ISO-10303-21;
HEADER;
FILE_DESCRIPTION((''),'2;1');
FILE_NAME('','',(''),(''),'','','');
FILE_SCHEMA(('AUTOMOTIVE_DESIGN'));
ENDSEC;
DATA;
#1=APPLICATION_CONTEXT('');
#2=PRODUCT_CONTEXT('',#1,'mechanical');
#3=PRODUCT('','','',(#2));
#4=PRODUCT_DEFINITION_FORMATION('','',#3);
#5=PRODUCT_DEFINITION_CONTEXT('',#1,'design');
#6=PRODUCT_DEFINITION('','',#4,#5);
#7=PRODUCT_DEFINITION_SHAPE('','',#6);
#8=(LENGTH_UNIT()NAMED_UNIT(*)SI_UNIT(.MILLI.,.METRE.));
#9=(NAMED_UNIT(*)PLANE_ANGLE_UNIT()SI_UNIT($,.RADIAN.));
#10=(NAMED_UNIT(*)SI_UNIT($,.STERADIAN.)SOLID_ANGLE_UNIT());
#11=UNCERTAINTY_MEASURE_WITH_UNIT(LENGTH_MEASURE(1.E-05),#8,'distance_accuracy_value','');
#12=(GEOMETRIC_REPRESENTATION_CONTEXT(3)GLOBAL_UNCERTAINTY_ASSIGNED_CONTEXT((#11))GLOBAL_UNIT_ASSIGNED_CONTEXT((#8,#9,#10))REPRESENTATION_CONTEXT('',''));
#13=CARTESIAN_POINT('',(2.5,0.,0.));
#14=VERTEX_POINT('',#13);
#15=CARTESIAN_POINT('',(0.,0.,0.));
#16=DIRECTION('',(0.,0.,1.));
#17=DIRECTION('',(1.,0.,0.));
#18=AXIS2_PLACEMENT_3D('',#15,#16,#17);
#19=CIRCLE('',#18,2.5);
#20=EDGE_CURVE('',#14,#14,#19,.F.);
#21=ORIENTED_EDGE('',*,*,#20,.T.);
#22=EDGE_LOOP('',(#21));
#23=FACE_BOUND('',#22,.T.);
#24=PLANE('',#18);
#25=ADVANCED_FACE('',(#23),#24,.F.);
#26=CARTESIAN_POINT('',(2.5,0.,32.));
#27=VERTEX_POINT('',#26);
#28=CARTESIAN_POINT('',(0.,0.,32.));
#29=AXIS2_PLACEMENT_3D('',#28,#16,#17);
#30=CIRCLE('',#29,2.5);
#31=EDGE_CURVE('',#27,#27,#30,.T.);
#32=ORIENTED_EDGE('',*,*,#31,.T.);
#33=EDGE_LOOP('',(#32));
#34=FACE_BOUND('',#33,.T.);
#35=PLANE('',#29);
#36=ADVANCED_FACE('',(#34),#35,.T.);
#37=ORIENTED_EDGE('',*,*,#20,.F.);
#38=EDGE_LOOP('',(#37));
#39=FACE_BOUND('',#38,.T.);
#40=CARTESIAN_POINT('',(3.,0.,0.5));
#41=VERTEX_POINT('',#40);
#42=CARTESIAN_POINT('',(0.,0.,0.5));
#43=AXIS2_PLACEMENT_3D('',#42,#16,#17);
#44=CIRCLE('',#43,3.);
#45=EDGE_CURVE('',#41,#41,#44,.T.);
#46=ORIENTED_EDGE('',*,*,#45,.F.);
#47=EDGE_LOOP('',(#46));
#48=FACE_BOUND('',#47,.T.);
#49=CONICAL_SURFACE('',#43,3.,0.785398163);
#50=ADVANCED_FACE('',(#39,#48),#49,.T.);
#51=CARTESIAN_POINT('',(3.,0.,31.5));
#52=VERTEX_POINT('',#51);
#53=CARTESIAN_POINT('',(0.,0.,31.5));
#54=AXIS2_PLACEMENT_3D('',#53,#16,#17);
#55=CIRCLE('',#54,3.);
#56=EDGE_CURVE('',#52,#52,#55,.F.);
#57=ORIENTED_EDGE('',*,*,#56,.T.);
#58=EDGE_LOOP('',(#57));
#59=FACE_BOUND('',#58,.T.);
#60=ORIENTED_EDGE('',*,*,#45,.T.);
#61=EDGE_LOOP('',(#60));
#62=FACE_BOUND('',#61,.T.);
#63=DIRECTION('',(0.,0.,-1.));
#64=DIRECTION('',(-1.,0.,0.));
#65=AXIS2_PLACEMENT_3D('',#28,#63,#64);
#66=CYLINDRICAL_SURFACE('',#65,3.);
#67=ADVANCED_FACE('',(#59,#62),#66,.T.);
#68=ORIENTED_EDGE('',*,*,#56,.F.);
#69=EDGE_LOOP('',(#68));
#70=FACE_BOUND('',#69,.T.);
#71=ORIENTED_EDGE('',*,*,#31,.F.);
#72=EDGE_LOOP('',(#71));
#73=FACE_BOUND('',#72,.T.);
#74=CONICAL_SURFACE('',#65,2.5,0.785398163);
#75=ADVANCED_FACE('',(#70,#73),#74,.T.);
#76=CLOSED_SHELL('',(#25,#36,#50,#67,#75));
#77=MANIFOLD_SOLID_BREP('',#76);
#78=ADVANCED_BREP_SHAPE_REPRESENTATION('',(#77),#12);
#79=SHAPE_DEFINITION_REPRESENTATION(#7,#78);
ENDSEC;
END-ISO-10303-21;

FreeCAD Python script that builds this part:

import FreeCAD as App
import Part
import Sketcher
from FreeCAD import Vector


def edges_at(feature, points):
    """Names of the edges that pass closest to the given points."""
    edges = feature.Shape.Edges
    near = lambda p: min(range(len(edges)), key=lambda i: edges[i].distToShape(Part.Vertex(*p))[0])
    return sorted({f"Edge{near(p) + 1}" for p in points})

doc = App.newDocument("Part")
body = doc.addObject("PartDesign::Body", "Body")

# Sketch on XY plane
sketch1 = body.newObject("Sketcher::SketchObject", "Sketch")
sketch1.AttachmentSupport = (doc.getObject("XY_Plane"), [""])
sketch1.MapMode = "FlatFace"
sketch1.addGeometry(Part.Circle(Vector(0, 0, 0), Vector(0, 0, 1), 3), False)
sketch1.addConstraint([
    Sketcher.Constraint("Coincident", 0, 3, -1, 1),
    Sketcher.Constraint("Diameter", 0, 6.0),
])
pad1 = body.newObject("PartDesign::Pad", "Pad")
pad1.Profile = sketch1
pad1.Length = 32
doc.recompute()

chamfer = body.newObject("PartDesign::Chamfer", "Chamfer")
chamfer.Base = (pad1, edges_at(pad1, [(-3, 0, 32)]))
chamfer.Size = 0.5
doc.recompute()

chamfer2 = body.newObject("PartDesign::Chamfer", "Chamfer001")
chamfer2.Base = (chamfer, edges_at(chamfer, [(-3, 0, 0)]))
chamfer2.Size = 0.5

doc.recompute()
